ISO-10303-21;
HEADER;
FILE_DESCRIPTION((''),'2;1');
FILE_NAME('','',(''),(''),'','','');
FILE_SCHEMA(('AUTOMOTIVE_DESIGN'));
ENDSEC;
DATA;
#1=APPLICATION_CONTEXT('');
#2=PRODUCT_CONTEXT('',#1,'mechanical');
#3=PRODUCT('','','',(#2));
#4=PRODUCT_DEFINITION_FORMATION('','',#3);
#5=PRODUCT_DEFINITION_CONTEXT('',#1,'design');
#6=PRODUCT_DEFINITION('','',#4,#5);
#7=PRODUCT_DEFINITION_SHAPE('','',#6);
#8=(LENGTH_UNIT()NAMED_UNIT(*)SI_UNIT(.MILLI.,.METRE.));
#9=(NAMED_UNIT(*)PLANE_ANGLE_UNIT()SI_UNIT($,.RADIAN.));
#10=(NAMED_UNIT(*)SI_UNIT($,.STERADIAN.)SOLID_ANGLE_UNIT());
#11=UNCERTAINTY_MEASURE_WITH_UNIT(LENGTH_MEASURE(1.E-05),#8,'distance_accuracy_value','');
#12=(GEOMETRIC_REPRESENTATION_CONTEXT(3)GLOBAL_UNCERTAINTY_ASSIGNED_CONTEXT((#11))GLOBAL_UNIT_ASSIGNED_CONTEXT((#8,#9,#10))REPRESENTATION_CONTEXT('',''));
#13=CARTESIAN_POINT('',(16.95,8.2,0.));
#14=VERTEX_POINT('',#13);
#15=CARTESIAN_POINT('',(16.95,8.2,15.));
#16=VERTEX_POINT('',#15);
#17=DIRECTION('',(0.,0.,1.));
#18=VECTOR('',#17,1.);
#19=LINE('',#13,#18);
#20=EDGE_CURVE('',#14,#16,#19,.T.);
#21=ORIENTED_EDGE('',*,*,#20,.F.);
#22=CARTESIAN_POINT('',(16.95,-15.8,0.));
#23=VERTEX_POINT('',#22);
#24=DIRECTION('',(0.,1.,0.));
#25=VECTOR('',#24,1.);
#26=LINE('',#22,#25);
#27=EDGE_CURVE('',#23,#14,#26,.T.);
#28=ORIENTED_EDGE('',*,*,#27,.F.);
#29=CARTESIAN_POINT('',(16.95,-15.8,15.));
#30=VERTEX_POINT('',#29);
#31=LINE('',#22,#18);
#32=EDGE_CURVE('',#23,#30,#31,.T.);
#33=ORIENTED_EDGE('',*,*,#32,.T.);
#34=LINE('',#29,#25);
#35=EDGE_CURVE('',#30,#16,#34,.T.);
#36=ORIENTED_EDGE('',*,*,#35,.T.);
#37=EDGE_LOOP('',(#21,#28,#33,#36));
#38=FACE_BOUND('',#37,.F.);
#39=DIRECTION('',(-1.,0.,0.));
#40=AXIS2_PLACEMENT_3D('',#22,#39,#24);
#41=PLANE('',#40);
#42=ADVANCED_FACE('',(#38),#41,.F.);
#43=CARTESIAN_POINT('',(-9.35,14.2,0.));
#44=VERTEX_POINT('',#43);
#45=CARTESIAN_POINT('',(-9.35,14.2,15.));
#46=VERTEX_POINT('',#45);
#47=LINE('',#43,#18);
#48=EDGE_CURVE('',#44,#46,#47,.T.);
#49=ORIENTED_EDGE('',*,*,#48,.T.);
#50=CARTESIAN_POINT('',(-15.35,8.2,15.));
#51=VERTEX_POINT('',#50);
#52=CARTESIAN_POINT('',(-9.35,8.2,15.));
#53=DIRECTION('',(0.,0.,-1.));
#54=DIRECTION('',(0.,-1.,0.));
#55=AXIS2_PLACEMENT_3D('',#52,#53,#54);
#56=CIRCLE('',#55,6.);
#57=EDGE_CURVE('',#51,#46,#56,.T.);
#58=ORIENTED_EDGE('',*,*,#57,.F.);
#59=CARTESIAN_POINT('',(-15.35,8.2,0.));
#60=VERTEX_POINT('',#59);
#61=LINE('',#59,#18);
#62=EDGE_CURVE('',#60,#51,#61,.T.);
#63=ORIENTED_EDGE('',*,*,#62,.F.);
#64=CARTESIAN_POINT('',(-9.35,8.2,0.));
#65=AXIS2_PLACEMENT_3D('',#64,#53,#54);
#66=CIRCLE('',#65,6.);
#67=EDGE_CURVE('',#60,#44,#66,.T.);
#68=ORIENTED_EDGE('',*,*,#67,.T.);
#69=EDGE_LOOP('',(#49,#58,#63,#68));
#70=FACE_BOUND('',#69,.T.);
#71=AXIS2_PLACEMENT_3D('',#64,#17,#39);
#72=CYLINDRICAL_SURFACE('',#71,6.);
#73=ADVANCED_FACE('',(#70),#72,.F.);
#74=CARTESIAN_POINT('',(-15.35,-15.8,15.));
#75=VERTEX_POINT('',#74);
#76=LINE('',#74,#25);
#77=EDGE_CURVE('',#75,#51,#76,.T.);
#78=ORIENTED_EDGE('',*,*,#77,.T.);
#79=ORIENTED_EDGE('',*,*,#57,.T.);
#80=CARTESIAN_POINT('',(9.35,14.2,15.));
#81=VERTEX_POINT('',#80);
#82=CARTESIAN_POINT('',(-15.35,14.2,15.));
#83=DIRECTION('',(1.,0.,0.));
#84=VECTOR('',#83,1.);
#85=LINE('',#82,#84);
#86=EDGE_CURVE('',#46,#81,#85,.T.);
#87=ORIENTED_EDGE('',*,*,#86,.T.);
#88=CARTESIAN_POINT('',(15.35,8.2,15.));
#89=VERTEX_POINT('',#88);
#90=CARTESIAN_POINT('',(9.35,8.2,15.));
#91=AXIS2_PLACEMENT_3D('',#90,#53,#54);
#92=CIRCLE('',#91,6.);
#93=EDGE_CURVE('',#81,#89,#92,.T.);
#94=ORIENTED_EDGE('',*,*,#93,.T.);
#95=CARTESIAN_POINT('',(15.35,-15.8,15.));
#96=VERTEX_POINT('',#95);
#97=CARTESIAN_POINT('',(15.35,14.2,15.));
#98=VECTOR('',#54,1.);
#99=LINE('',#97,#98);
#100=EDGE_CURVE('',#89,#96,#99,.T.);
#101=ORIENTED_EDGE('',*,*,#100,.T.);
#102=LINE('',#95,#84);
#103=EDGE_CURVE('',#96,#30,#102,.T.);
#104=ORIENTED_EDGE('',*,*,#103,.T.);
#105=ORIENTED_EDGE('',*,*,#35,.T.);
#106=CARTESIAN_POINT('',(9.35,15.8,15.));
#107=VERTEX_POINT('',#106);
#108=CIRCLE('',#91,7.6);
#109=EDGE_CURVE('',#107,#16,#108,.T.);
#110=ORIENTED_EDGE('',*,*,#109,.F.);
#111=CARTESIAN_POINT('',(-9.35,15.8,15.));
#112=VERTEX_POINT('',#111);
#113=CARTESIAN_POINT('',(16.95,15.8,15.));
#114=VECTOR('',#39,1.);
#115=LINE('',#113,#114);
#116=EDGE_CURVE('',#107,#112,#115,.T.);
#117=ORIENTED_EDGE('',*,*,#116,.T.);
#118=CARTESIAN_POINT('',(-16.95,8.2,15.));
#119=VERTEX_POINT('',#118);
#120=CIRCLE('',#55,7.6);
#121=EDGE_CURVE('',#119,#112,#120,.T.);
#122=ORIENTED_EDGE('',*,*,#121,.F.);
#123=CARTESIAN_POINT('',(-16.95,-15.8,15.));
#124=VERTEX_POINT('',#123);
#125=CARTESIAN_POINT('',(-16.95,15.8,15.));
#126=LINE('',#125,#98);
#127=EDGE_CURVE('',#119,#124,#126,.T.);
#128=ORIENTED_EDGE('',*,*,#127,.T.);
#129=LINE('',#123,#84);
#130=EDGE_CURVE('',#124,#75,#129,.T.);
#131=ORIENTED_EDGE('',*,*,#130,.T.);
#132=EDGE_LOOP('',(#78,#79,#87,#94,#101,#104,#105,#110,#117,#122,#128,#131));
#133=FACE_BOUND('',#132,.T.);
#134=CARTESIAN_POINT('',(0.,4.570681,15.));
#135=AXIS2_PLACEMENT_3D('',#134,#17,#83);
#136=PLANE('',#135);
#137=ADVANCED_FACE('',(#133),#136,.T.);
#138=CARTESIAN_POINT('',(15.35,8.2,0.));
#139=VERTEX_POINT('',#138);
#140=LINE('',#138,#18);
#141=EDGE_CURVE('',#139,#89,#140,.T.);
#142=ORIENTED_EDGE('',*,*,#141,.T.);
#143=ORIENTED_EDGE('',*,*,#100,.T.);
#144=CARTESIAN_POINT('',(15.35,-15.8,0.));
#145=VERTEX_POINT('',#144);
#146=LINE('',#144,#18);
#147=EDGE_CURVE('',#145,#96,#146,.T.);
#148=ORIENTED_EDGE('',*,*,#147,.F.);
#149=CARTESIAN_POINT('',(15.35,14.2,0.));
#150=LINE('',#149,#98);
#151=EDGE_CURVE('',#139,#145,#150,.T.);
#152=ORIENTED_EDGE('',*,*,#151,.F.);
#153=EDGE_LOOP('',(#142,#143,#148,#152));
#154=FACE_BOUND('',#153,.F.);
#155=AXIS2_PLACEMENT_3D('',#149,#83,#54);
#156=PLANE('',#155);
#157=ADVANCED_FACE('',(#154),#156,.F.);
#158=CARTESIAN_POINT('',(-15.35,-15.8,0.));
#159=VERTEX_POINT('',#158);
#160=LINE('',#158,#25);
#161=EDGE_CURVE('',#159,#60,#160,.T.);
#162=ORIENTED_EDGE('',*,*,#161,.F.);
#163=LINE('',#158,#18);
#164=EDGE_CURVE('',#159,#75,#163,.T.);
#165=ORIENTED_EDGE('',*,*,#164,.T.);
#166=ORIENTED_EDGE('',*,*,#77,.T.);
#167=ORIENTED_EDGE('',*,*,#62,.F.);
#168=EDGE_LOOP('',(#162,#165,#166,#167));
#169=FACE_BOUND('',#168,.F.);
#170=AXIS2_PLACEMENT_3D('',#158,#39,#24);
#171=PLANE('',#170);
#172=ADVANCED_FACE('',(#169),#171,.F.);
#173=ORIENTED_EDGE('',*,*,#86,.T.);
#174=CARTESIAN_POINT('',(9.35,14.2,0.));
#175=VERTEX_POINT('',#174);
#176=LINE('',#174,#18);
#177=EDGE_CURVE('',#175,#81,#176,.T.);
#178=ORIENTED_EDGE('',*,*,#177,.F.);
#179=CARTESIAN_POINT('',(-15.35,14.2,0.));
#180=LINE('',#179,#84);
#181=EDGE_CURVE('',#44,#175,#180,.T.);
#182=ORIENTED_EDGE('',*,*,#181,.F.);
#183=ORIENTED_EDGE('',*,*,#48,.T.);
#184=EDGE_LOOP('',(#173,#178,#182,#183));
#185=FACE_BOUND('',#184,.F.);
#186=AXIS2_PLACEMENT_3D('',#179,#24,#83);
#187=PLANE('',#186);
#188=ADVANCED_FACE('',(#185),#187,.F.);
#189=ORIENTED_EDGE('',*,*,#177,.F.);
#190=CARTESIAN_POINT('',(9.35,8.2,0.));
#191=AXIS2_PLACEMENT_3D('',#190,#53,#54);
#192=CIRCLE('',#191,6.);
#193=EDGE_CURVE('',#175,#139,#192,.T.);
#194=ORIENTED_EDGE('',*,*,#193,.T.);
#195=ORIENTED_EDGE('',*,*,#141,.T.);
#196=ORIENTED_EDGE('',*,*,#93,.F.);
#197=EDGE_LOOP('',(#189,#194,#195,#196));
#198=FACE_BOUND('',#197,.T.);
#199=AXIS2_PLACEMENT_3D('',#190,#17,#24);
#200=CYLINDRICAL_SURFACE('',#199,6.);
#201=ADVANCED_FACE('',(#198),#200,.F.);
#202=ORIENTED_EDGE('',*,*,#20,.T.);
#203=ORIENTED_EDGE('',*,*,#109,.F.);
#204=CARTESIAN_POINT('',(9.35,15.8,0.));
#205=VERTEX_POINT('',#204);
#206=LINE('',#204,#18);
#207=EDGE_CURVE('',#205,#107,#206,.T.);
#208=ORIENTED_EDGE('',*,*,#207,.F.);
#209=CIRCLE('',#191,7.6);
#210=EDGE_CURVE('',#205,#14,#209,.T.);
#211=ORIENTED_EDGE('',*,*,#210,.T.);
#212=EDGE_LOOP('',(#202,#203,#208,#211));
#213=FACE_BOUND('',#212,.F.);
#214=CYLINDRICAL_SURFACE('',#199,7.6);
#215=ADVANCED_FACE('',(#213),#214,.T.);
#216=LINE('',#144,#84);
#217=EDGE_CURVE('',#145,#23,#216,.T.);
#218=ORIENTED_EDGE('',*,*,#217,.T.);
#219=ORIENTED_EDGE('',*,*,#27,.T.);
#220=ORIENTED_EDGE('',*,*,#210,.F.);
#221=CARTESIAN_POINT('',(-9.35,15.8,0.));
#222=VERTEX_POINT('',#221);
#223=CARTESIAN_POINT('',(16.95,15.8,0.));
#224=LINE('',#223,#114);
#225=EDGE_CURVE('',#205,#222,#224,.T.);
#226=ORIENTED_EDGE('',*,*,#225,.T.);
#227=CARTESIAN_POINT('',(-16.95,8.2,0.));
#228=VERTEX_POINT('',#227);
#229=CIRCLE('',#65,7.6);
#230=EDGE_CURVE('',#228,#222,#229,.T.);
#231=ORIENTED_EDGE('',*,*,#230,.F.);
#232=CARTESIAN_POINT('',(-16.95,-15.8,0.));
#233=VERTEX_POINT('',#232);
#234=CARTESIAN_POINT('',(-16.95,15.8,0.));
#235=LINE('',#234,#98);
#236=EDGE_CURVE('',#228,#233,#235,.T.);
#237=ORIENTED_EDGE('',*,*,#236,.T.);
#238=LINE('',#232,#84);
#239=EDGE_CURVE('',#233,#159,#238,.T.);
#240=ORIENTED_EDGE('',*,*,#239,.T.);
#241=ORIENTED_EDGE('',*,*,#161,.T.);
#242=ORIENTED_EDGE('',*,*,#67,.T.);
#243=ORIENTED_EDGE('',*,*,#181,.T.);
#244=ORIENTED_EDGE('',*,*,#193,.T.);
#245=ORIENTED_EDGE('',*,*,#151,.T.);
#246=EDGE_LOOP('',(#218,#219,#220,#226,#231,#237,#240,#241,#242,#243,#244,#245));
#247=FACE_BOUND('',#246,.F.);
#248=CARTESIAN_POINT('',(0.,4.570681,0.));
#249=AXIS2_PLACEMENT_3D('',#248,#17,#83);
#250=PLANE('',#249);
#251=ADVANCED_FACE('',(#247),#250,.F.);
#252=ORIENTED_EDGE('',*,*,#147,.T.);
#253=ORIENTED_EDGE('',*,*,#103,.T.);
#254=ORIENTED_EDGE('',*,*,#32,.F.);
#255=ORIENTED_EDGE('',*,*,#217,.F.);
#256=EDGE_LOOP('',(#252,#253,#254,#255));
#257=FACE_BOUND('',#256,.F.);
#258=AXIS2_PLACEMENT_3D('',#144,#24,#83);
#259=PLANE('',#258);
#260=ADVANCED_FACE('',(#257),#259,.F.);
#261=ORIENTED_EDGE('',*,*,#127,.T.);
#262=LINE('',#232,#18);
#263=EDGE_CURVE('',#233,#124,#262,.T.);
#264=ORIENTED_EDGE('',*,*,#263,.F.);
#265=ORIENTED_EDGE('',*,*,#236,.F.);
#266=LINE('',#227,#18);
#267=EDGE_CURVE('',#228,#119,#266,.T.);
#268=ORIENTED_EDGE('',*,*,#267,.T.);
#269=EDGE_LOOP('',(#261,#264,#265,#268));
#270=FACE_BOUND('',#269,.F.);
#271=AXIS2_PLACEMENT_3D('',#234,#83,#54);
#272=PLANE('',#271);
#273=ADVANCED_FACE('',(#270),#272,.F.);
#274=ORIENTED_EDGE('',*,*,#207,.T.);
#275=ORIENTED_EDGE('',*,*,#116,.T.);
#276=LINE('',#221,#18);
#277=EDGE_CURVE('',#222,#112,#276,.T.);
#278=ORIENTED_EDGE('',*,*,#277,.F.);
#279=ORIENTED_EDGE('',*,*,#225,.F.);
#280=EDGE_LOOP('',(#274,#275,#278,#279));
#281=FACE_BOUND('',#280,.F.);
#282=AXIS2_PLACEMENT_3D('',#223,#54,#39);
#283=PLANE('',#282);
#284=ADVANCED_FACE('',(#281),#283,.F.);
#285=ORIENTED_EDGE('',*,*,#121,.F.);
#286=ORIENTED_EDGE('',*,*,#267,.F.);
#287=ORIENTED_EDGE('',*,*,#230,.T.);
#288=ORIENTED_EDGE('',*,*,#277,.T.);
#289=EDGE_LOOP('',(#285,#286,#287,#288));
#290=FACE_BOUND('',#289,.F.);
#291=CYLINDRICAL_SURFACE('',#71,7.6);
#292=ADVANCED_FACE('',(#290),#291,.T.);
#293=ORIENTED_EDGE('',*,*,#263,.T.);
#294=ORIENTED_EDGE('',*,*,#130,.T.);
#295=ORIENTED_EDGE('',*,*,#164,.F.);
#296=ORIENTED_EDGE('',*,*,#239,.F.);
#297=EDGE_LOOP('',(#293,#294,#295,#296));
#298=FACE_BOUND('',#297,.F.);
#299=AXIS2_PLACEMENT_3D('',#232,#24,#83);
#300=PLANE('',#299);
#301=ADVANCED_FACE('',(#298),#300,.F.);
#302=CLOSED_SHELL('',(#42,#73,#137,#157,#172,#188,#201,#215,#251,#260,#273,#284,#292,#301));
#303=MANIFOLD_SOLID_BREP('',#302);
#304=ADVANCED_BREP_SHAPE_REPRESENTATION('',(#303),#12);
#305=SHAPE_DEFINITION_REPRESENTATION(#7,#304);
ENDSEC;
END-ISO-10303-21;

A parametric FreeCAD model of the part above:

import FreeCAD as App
import Part
import Sketcher
from FreeCAD import Vector
Q = App.Units.Quantity


def edges_at(feature, points):
    """Names of the edges that pass closest to the given points."""
    edges = feature.Shape.Edges
    near = lambda p: min(range(len(edges)), key=lambda i: edges[i].distToShape(Part.Vertex(*p))[0])
    return sorted({f"Edge{near(p) + 1}" for p in points})


def add_polygon(sketch, points):
    """Adds a closed chain of lines whose ends are joined by coincident constraints."""
    first, n = sketch.GeometryCount, len(points)
    for a, b in zip(points, points[1:] + points[:1]):
        sketch.addGeometry(Part.LineSegment(App.Vector(*a, 0), App.Vector(*b, 0)), False)
    for i in range(n):
        sketch.addConstraint(Sketcher.Constraint("Coincident", first + i, 2, first + (i + 1) % n, 1))

doc = App.newDocument("Part")
params = doc.addObject("Spreadsheet::Sheet", "Params")
for row, (alias, value) in enumerate([
    ("sketch1_height", "30 mm"),
    ("sketch1_width", "1.6 mm"),
    ("sketch1_width2", "30.7 mm"),
    ("sketch1_height2", "31.6 mm"),
    ("pad1_length", "15 mm"),
    ("fillet_radius", "6 mm"),
    ("fillet2_radius", "7.6 mm"),
], start=1):
    params.set(f"A{row}", alias)
    params.set(f"B{row}", "=" + value)
    params.setAlias(f"B{row}", alias)

body = doc.addObject("PartDesign::Body", "Body")

# Sketch on XY plane
sketch1 = doc.addObject("Sketcher::SketchObject", "Sketch")
body.addObject(sketch1)
sketch1.AttachmentSupport = (doc.XY_Plane, [""])
sketch1.MapMode = "FlatFace"
add_polygon(sketch1, [(-16.95, -15.8), (-15.35, -15.8), (-15.35, 14.2), (15.35, 14.2), (15.35, -15.8), (16.95, -15.8), (16.95, 15.8), (-16.95, 15.8)])  # lines 0-7
sketch1.addConstraint(Sketcher.Constraint("Horizontal", 0))
sketch1.addConstraint(Sketcher.Constraint("Vertical", 1))
sketch1.addConstraint(Sketcher.Constraint("Horizontal", 2))
sketch1.addConstraint(Sketcher.Constraint("Vertical", 3))
sketch1.addConstraint(Sketcher.Constraint("Horizontal", 4))
sketch1.addConstraint(Sketcher.Constraint("Vertical", 5))
sketch1.addConstraint(Sketcher.Constraint("Horizontal", 6))
sketch1.addConstraint(Sketcher.Constraint("Vertical", 7))
sketch1.addConstraint(Sketcher.Constraint("Symmetric", 4, 2, 6, 2, -1, 1))
sketch1.addConstraint(Sketcher.Constraint("Symmetric", 0, 2, 3, 2, -2))
sketch1.addConstraint(Sketcher.Constraint("DistanceY", 1, 1, 1, 2, Q("30 mm")))
sketch1.addConstraint(Sketcher.Constraint("DistanceX", 0, 1, 0, 2, Q("1.6 mm")))
sketch1.addConstraint(Sketcher.Constraint("DistanceX", 2, 1, 2, 2, Q("30.7 mm")))
sketch1.addConstraint(Sketcher.Constraint("DistanceY", 5, 1, 5, 2, Q("31.6 mm")))
sketch1.setExpression("Constraints[18]", "Params.sketch1_height")
sketch1.setExpression("Constraints[19]", "Params.sketch1_width")
sketch1.setExpression("Constraints[20]", "Params.sketch1_width2")
sketch1.setExpression("Constraints[21]", "Params.sketch1_height2")
pad1 = doc.addObject("PartDesign::Pad", "Pad")
body.addObject(pad1)
pad1.Profile = sketch1
pad1.setExpression("Length", "Params.pad1_length")
doc.recompute()

fillet = doc.addObject("PartDesign::Fillet", "Fillet")
body.addObject(fillet)
fillet.Base = (pad1, edges_at(pad1, [(-15.35, 14.2, 7.5), (15.35, 14.2, 7.5)]))
fillet.setExpression("Radius", "Params.fillet_radius")
doc.recompute()

fillet2 = doc.addObject("PartDesign::Fillet", "Fillet001")
body.addObject(fillet2)
fillet2.Base = (fillet, edges_at(fillet, [(-16.95, 15.8, 7.5), (16.95, 15.8, 7.5)]))
fillet2.setExpression("Radius", "Params.fillet2_radius")

doc.recompute()
